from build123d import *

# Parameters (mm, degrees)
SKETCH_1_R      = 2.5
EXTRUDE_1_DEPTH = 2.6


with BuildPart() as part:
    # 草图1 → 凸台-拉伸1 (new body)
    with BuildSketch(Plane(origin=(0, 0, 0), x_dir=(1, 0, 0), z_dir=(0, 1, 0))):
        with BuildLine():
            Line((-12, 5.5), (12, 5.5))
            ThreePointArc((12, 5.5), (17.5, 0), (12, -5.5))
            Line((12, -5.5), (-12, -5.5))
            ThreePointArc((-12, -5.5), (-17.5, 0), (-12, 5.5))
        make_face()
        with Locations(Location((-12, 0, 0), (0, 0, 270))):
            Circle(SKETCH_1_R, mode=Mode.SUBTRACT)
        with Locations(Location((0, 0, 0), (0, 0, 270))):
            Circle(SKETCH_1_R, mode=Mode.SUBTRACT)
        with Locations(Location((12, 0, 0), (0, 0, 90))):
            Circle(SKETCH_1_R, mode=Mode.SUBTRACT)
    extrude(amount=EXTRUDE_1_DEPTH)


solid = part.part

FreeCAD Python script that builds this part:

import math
import FreeCAD as App
import Part
import Sketcher
from FreeCAD import Vector

doc = App.newDocument("Part")
body = doc.addObject("PartDesign::Body", "Body")

sketch1 = body.newObject("Sketcher::SketchObject", "Sketch")
sketch1.AttachmentSupport = (doc.getObject("XZ_Plane"), [""])
sketch1.MapMode = "FlatFace"
sketch1.addGeometry([
    Part.LineSegment(Vector(12, -5.5, 0), Vector(-12, -5.5, 0)),
    Part.ArcOfCircle(Part.Circle(Vector(-12, 0, 0), Vector(0, 0, 1), 5.5), math.radians(90), math.radians(270)),
    Part.LineSegment(Vector(-12, 5.5, 0), Vector(12, 5.5, 0)),
    Part.ArcOfCircle(Part.Circle(Vector(12, 0, 0), Vector(0, 0, 1), 5.5), math.radians(-90), math.radians(90)),
    Part.Circle(Vector(12, 0, 0), Vector(0, 0, 1), 2.5),
    Part.Circle(Vector(0, 0, 0), Vector(0, 0, 1), 2.5),
    Part.Circle(Vector(-12, 0, 0), Vector(0, 0, 1), 2.5),
], False)
sketch1.addConstraint([
    Sketcher.Constraint("Tangent", 0, 2, 1, 2),
    Sketcher.Constraint("Tangent", 1, 1, 2, 1),
    Sketcher.Constraint("Tangent", 2, 2, 3, 2),
    Sketcher.Constraint("Tangent", 3, 1, 0, 1),
    Sketcher.Constraint("Horizontal", 0),
    Sketcher.Constraint("Horizontal", 2),
    Sketcher.Constraint("Coincident", 5, 3, -1, 1),
    Sketcher.Constraint("Coincident", 4, 3, 3, 3),
    Sketcher.Constraint("Coincident", 6, 3, 1, 3),
    Sketcher.Constraint("Equal", 4, 5),
    Sketcher.Constraint("Equal", 5, 6),
    Sketcher.Constraint("Symmetric", 1, 3, 3, 3, -1, 1),
    Sketcher.Constraint("Diameter", 4, 5.0),
    Sketcher.Constraint("Radius", 1, 5.5),
    Sketcher.Constraint("DistanceX", 0, 2, 0, 1, 24.0),
])
pad1 = body.newObject("PartDesign::Pad", "Pad")
pad1.Profile = sketch1
pad1.Length = 2.6
pad1.Reversed = True

doc.recompute()
